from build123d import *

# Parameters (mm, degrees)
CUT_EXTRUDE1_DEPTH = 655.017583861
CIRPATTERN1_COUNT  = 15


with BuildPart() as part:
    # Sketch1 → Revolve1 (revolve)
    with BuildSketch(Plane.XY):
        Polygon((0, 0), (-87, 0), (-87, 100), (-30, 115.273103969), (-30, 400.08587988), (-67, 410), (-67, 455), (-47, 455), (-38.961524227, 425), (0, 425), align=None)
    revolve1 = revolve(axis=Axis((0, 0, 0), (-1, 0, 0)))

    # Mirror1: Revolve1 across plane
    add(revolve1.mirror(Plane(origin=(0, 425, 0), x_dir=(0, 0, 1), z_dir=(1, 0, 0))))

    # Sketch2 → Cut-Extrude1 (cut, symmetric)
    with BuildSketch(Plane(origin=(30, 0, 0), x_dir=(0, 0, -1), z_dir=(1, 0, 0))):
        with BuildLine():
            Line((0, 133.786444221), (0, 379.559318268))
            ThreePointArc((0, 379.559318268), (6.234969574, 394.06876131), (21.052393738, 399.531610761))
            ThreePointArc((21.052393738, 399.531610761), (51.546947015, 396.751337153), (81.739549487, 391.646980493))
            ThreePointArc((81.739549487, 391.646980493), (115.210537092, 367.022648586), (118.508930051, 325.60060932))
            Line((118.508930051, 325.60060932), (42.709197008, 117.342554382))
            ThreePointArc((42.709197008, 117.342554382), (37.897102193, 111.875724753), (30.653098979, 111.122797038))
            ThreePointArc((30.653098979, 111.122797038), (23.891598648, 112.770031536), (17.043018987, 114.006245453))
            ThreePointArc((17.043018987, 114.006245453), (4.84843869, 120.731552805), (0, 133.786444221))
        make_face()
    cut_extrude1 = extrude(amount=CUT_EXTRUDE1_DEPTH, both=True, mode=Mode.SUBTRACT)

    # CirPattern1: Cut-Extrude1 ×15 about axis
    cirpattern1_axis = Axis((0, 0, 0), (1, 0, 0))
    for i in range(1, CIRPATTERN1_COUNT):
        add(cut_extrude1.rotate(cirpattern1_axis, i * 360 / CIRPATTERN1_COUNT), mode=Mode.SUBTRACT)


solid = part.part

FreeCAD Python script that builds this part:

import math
import FreeCAD as App
import Part
import Sketcher
Q = App.Units.Quantity


def add_polygon(sketch, points):
    """Adds a closed chain of lines whose ends are joined by coincident constraints."""
    first, n = sketch.GeometryCount, len(points)
    for a, b in zip(points, points[1:] + points[:1]):
        sketch.addGeometry(Part.LineSegment(App.Vector(*a, 0), App.Vector(*b, 0)), False)
    for i in range(n):
        sketch.addConstraint(Sketcher.Constraint("Coincident", first + i, 2, first + (i + 1) % n, 1))

doc = App.newDocument("Part")
params = doc.addObject("Spreadsheet::Sheet", "Params")
for row, (alias, value) in enumerate([
    ("sketch1_width", "87 mm"),
    ("sketch1_width2", "20 mm"),
    ("sketch1_height", "425 mm"),
    ("sketch1_height2", "45 mm"),
    ("sketch1_height3", "100 mm"),
    ("revolution_angle", "360 deg"),
    ("sketch2_radius", "20 mm"),
    ("sketch2_radius2", "10 mm"),
    ("sketch2_radius3", "50 mm"),
    ("pocket1_length", "1310.035168 mm"),
], start=1):
    params.set(f"A{row}", alias)
    params.set(f"B{row}", "=" + value)
    params.setAlias(f"B{row}", alias)

body = doc.addObject("PartDesign::Body", "Body")

sketch1 = body.newObject("Sketcher::SketchObject", "Sketch")
sketch1.AttachmentSupport = (doc.getObject("XY_Plane"), [""])
sketch1.MapMode = "FlatFace"
add_polygon(sketch1, [(-87, 0), (0, 0), (0, 425), (-39, 425), (-47, 455), (-67, 455), (-67, 410), (-30, 400), (-30, 115), (-87, 100)])
sketch1.addConstraint(Sketcher.Constraint("Horizontal", 0))
sketch1.addConstraint(Sketcher.Constraint("Vertical", 1))
sketch1.addConstraint(Sketcher.Constraint("Horizontal", 2))
sketch1.addConstraint(Sketcher.Constraint("Horizontal", 4))
sketch1.addConstraint(Sketcher.Constraint("Vertical", 5))
sketch1.addConstraint(Sketcher.Constraint("Vertical", 7))
sketch1.addConstraint(Sketcher.Constraint("Vertical", 9))
sketch1.addConstraint(Sketcher.Constraint("Coincident", 0, 2, -1, 1))
sketch1.addConstraint(Sketcher.Constraint("Perpendicular", 3, 8))
sketch1.addConstraint(Sketcher.Constraint("DistanceX", 0, 1, 0, 2, Q("87 mm")))
sketch1.addConstraint(Sketcher.Constraint("DistanceX", 4, 2, 4, 1, Q("20 mm")))
sketch1.addConstraint(Sketcher.Constraint("DistanceY", 1, 1, 1, 2, Q("425 mm")))
sketch1.addConstraint(Sketcher.Constraint("DistanceY", 5, 2, 5, 1, Q("45 mm")))
sketch1.addConstraint(Sketcher.Constraint("DistanceY", 9, 2, 9, 1, Q("100 mm")))
sketch1.addConstraint(Sketcher.Constraint("Angle", 3, Q("105 deg")))
sketch1.addConstraint(Sketcher.Constraint("Angle", 6, Q("-15 deg")))
sketch1.addConstraint(Sketcher.Constraint("DistanceX", 3, 2, -1, 1, Q("47 mm")))
sketch1.addConstraint(Sketcher.Constraint("DistanceY", -1, 1, 3, 2, Q("455 mm")))
sketch1.addConstraint(Sketcher.Constraint("DistanceX", 6, 2, -1, 1, Q("30 mm")))
sketch1.setExpression("Constraints[19]", "Params.sketch1_width")
sketch1.setExpression("Constraints[20]", "Params.sketch1_width2")
sketch1.setExpression("Constraints[21]", "Params.sketch1_height")
sketch1.setExpression("Constraints[22]", "Params.sketch1_height2")
sketch1.setExpression("Constraints[23]", "Params.sketch1_height3")
revolution = body.newObject("PartDesign::Revolution", "Revolution")
revolution.Profile = sketch1
revolution.ReferenceAxis = (sketch1, ["H_Axis"])
revolution.setExpression("Angle", "Params.revolution_angle")
doc.recompute()

mirrored = body.newObject("PartDesign::Mirrored", "Mirrored")
mirrored.Originals = [revolution]
mirrored.MirrorPlane = (doc.getObject("YZ_Plane"), [""])
body.Tip = mirrored

sketch2 = body.newObject("Sketcher::SketchObject", "Sketch001")
sketch2.AttachmentSupport = (doc.getObject("YZ_Plane"), [""])
sketch2.MapMode = "FlatFace"
sketch2.AttachmentOffset = App.Placement(App.Vector(0, 0, 30), App.Rotation())
sketch2.addGeometry(Part.LineSegment(App.Vector(380, 0, 0), App.Vector(134, 0, 0)), False)
sketch2.addGeometry(Part.ArcOfCircle(Part.Circle(App.Vector(134, -20, 0), App.Vector(0, 0, 1), 20), math.radians(90), math.radians(171)), False)
sketch2.addGeometry(Part.ArcOfCircle(Part.Circle(App.Vector(0, 0, 0), App.Vector(0, 0, 1), 115), math.radians(-15.42), math.radians(-8.5)), False)
sketch2.addGeometry(Part.ArcOfCircle(Part.Circle(App.Vector(121, -33, 0), App.Vector(0, 0, 1), 10), math.radians(165), math.radians(250)), False)
sketch2.addGeometry(Part.LineSegment(App.Vector(117, -43, 0), App.Vector(326, -119, 0)), False)
sketch2.addGeometry(Part.ArcOfCircle(Part.Circle(App.Vector(343, -72, 0), App.Vector(0, 0, 1), 50), math.radians(-110), math.radians(-12)), False)
sketch2.addGeometry(Part.ArcOfCircle(Part.Circle(App.Vector(0, 0, 0), App.Vector(0, 0, 1), 400), math.radians(-11.79), math.radians(-3.02)), False)
sketch2.addGeometry(Part.ArcOfCircle(Part.Circle(App.Vector(380, -20, 0), App.Vector(0, 0, 1), 20), math.radians(-3), math.radians(90)), False)
sketch2.addConstraint(Sketcher.Constraint("Tangent", 0, 2, 1, 1))
sketch2.addConstraint(Sketcher.Constraint("Tangent", 1, 2, 2, 2))
sketch2.addConstraint(Sketcher.Constraint("Tangent", 2, 1, 3, 1))
sketch2.addConstraint(Sketcher.Constraint("Tangent", 3, 2, 4, 1))
sketch2.addConstraint(Sketcher.Constraint("Tangent", 4, 2, 5, 1))
sketch2.addConstraint(Sketcher.Constraint("Tangent", 5, 2, 6, 1))
sketch2.addConstraint(Sketcher.Constraint("Tangent", 6, 2, 7, 1))
sketch2.addConstraint(Sketcher.Constraint("Tangent", 7, 2, 0, 1))
sketch2.addConstraint(Sketcher.Constraint("Horizontal", 0))
sketch2.addConstraint(Sketcher.Constraint("Coincident", 2, 3, -1, 1))
sketch2.addConstraint(Sketcher.Constraint("Coincident", 6, 3, -1, 1))
sketch2.addConstraint(Sketcher.Constraint("Equal", 1, 7))
sketch2.addConstraint(Sketcher.Constraint("PointOnObject", 0, 2, -1))
sketch2.addConstraint(Sketcher.Constraint("Radius", 1, Q("20 mm")))
sketch2.addConstraint(Sketcher.Constraint("Radius", 3, Q("10 mm")))
sketch2.addConstraint(Sketcher.Constraint("Radius", 5, Q("50 mm")))
sketch2.addConstraint(Sketcher.Constraint("Angle", 4, Q("-20 deg")))
sketch2.addConstraint(Sketcher.Constraint("Radius", 6, Q("400.08588 mm")))
sketch2.addConstraint(Sketcher.Constraint("Radius", 2, Q("115.273104 mm")))
sketch2.addConstraint(Sketcher.Constraint("DistanceX", 4, 2, 6, 2, Q("73.931001 mm")))
sketch2.setExpression("Constraints[13]", "Params.sketch2_radius")
sketch2.setExpression("Constraints[14]", "Params.sketch2_radius2")
sketch2.setExpression("Constraints[15]", "Params.sketch2_radius3")
pocket1 = body.newObject("PartDesign::Pocket", "Pocket")
pocket1.Profile = sketch2
pocket1.setExpression("Length", "Params.pocket1_length")
pocket1.Midplane = True
doc.recompute()

polarpattern = body.newObject("PartDesign::PolarPattern", "PolarPattern")
polarpattern.Originals = [pocket1]
polarpattern.Axis = (doc.getObject("X_Axis"), [""])
polarpattern.Angle = 360
polarpattern.Occurrences = 15
body.Tip = polarpattern

doc.recompute()
